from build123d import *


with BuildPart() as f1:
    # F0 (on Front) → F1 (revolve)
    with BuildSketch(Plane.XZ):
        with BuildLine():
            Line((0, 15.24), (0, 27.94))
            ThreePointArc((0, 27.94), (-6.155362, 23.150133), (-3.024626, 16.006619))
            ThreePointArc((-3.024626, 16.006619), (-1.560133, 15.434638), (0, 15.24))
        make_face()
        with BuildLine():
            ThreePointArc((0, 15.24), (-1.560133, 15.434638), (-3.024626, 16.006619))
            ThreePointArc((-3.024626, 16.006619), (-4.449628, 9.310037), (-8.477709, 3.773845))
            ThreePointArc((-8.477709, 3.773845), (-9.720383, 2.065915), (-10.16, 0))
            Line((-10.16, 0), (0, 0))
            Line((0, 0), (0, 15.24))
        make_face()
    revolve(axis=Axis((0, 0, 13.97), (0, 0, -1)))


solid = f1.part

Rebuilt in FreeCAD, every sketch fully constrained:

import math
import FreeCAD as App
import Part
import Sketcher

V = App.Vector
Q = App.Units.Quantity

doc = App.newDocument("Part")
body = doc.addObject("PartDesign::Body", "Body")

# Sketch on XZ plane
sketch1 = body.newObject("Sketcher::SketchObject", "Sketch")
sketch1.AttachmentSupport = (doc.getObject("XZ_Plane"), [""])
sketch1.MapMode = "FlatFace"
sketch1.addGeometry([
    Part.ArcOfCircle(Part.Circle(V(0, 21.6, 0), V(0, 0, 1), 6.4), math.radians(90), math.radians(242)),  # 0
    Part.ArcOfCircle(Part.Circle(V(-19.5, 16, 0), V(0, 0, 1), 16.4), math.radians(-48), math.radians(0)),  # 1
    Part.ArcOfCircle(Part.Circle(V(-5.1, 0, 0), V(0, 0, 1), 5.1), math.radians(132), math.radians(180)),  # 2
    Part.LineSegment(V(-10.2, 0, 0), V(0, 0, 0)),  # 3
    Part.LineSegment(V(0, 0, 0), V(0, 27.9, 0)),  # 4
], False)
sketch1.addConstraint([
    Sketcher.Constraint("Coincident", 0, 2, 1, 2),
    Sketcher.Constraint("Tangent", 1, 1, 2, 1),
    Sketcher.Constraint("Coincident", 2, 2, 3, 1),
    Sketcher.Constraint("Coincident", 3, 2, 4, 1),
    Sketcher.Constraint("Coincident", 4, 2, 0, 1),
    Sketcher.Constraint("Horizontal", 3),
    Sketcher.Constraint("Vertical", 4),
    Sketcher.Constraint("Coincident", 3, 2, -1, 1),
    Sketcher.Constraint("PointOnObject", 0, 3, -2),
    Sketcher.Constraint("PointOnObject", 2, 3, -1),
    Sketcher.Constraint("Horizontal", 1, 3, 0, 2),
    Sketcher.Constraint("Radius", 0, Q("0.25 in")),
    Sketcher.Constraint("DistanceX", 3, 1, 3, 2, Q("0.4 in")),
    Sketcher.Constraint("DistanceY", 4, 1, 4, 2, Q("1.1 in")),
    Sketcher.Constraint("Radius", 1, Q("16.44729 mm")),
    Sketcher.Constraint("Radius", 2, Q("5.074032 mm")),
])
revolution = body.newObject("PartDesign::Revolution", "Revolution")
revolution.Profile = sketch1
revolution.ReferenceAxis = (sketch1, ["V_Axis"])
revolution.Angle = 360

doc.recompute()
